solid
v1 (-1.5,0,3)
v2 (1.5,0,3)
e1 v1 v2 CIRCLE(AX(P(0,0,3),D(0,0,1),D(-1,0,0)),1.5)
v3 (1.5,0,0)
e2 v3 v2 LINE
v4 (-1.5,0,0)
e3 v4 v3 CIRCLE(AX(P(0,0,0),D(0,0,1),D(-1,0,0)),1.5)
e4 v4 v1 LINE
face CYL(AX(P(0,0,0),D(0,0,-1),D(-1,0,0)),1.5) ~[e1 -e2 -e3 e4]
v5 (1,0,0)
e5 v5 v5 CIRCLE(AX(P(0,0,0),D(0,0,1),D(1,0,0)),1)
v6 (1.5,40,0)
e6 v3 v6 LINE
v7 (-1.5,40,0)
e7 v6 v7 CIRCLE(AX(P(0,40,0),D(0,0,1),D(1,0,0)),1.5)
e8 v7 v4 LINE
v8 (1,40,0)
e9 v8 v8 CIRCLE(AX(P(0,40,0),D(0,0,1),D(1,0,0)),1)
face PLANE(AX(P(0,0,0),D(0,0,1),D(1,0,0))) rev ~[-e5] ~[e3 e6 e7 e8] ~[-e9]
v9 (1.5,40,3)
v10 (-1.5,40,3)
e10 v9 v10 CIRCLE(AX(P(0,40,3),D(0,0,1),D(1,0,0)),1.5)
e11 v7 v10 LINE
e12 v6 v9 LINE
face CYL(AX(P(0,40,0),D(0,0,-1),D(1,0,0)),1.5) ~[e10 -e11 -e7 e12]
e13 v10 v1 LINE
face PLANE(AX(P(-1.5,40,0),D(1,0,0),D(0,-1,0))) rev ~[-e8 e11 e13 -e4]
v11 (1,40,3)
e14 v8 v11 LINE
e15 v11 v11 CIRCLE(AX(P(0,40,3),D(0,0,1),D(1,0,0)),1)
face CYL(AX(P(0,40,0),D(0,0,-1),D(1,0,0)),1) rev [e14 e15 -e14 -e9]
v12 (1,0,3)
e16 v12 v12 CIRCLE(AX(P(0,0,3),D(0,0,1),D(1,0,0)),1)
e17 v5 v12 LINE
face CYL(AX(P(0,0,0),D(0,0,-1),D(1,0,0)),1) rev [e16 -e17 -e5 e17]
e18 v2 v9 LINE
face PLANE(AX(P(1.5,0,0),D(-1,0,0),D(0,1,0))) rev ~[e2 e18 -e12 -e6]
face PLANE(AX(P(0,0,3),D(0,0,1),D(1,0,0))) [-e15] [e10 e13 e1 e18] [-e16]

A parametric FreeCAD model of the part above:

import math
import FreeCAD as App
import Part
import Sketcher

doc = App.newDocument("Part")
body = doc.addObject("PartDesign::Body", "Body")

# Sketch on XY plane
sketch1 = body.newObject("Sketcher::SketchObject", "Sketch")
sketch1.AttachmentSupport = (doc.getObject("XY_Plane"), [""])
sketch1.MapMode = "FlatFace"
sketch1.addGeometry(Part.ArcOfCircle(Part.Circle(App.Vector(0, 0, 0), App.Vector(0, 0, 1), 1.5), math.radians(180), math.radians(360)), False)
sketch1.addGeometry(Part.LineSegment(App.Vector(1.5, 0, 0), App.Vector(1.5, 40, 0)), False)
sketch1.addGeometry(Part.ArcOfCircle(Part.Circle(App.Vector(0, 40, 0), App.Vector(0, 0, 1), 1.5), math.radians(0), math.radians(180)), False)
sketch1.addGeometry(Part.LineSegment(App.Vector(-1.5, 40, 0), App.Vector(-1.5, 0, 0)), False)
sketch1.addGeometry(Part.Circle(App.Vector(0, 0, 0), App.Vector(0, 0, 1), 1), False)
sketch1.addGeometry(Part.Circle(App.Vector(0, 40, 0), App.Vector(0, 0, 1), 1), False)
sketch1.addConstraint(Sketcher.Constraint("Tangent", 0, 2, 1, 1))
sketch1.addConstraint(Sketcher.Constraint("Tangent", 1, 2, 2, 1))
sketch1.addConstraint(Sketcher.Constraint("Tangent", 2, 2, 3, 1))
sketch1.addConstraint(Sketcher.Constraint("Tangent", 3, 2, 0, 1))
sketch1.addConstraint(Sketcher.Constraint("Vertical", 1))
sketch1.addConstraint(Sketcher.Constraint("Vertical", 3))
sketch1.addConstraint(Sketcher.Constraint("Coincident", 0, 3, -1, 1))
sketch1.addConstraint(Sketcher.Constraint("Coincident", 4, 3, -1, 1))
sketch1.addConstraint(Sketcher.Constraint("Coincident", 5, 3, 2, 3))
sketch1.addConstraint(Sketcher.Constraint("Equal", 4, 5))
sketch1.addConstraint(Sketcher.Constraint("Diameter", 4, 2.0))
sketch1.addConstraint(Sketcher.Constraint("Radius", 0, 1.5))
sketch1.addConstraint(Sketcher.Constraint("DistanceY", 1, 1, 1, 2, 40.0))
pad1 = body.newObject("PartDesign::Pad", "Pad")
pad1.Profile = sketch1
pad1.Length = 3

doc.recompute()
